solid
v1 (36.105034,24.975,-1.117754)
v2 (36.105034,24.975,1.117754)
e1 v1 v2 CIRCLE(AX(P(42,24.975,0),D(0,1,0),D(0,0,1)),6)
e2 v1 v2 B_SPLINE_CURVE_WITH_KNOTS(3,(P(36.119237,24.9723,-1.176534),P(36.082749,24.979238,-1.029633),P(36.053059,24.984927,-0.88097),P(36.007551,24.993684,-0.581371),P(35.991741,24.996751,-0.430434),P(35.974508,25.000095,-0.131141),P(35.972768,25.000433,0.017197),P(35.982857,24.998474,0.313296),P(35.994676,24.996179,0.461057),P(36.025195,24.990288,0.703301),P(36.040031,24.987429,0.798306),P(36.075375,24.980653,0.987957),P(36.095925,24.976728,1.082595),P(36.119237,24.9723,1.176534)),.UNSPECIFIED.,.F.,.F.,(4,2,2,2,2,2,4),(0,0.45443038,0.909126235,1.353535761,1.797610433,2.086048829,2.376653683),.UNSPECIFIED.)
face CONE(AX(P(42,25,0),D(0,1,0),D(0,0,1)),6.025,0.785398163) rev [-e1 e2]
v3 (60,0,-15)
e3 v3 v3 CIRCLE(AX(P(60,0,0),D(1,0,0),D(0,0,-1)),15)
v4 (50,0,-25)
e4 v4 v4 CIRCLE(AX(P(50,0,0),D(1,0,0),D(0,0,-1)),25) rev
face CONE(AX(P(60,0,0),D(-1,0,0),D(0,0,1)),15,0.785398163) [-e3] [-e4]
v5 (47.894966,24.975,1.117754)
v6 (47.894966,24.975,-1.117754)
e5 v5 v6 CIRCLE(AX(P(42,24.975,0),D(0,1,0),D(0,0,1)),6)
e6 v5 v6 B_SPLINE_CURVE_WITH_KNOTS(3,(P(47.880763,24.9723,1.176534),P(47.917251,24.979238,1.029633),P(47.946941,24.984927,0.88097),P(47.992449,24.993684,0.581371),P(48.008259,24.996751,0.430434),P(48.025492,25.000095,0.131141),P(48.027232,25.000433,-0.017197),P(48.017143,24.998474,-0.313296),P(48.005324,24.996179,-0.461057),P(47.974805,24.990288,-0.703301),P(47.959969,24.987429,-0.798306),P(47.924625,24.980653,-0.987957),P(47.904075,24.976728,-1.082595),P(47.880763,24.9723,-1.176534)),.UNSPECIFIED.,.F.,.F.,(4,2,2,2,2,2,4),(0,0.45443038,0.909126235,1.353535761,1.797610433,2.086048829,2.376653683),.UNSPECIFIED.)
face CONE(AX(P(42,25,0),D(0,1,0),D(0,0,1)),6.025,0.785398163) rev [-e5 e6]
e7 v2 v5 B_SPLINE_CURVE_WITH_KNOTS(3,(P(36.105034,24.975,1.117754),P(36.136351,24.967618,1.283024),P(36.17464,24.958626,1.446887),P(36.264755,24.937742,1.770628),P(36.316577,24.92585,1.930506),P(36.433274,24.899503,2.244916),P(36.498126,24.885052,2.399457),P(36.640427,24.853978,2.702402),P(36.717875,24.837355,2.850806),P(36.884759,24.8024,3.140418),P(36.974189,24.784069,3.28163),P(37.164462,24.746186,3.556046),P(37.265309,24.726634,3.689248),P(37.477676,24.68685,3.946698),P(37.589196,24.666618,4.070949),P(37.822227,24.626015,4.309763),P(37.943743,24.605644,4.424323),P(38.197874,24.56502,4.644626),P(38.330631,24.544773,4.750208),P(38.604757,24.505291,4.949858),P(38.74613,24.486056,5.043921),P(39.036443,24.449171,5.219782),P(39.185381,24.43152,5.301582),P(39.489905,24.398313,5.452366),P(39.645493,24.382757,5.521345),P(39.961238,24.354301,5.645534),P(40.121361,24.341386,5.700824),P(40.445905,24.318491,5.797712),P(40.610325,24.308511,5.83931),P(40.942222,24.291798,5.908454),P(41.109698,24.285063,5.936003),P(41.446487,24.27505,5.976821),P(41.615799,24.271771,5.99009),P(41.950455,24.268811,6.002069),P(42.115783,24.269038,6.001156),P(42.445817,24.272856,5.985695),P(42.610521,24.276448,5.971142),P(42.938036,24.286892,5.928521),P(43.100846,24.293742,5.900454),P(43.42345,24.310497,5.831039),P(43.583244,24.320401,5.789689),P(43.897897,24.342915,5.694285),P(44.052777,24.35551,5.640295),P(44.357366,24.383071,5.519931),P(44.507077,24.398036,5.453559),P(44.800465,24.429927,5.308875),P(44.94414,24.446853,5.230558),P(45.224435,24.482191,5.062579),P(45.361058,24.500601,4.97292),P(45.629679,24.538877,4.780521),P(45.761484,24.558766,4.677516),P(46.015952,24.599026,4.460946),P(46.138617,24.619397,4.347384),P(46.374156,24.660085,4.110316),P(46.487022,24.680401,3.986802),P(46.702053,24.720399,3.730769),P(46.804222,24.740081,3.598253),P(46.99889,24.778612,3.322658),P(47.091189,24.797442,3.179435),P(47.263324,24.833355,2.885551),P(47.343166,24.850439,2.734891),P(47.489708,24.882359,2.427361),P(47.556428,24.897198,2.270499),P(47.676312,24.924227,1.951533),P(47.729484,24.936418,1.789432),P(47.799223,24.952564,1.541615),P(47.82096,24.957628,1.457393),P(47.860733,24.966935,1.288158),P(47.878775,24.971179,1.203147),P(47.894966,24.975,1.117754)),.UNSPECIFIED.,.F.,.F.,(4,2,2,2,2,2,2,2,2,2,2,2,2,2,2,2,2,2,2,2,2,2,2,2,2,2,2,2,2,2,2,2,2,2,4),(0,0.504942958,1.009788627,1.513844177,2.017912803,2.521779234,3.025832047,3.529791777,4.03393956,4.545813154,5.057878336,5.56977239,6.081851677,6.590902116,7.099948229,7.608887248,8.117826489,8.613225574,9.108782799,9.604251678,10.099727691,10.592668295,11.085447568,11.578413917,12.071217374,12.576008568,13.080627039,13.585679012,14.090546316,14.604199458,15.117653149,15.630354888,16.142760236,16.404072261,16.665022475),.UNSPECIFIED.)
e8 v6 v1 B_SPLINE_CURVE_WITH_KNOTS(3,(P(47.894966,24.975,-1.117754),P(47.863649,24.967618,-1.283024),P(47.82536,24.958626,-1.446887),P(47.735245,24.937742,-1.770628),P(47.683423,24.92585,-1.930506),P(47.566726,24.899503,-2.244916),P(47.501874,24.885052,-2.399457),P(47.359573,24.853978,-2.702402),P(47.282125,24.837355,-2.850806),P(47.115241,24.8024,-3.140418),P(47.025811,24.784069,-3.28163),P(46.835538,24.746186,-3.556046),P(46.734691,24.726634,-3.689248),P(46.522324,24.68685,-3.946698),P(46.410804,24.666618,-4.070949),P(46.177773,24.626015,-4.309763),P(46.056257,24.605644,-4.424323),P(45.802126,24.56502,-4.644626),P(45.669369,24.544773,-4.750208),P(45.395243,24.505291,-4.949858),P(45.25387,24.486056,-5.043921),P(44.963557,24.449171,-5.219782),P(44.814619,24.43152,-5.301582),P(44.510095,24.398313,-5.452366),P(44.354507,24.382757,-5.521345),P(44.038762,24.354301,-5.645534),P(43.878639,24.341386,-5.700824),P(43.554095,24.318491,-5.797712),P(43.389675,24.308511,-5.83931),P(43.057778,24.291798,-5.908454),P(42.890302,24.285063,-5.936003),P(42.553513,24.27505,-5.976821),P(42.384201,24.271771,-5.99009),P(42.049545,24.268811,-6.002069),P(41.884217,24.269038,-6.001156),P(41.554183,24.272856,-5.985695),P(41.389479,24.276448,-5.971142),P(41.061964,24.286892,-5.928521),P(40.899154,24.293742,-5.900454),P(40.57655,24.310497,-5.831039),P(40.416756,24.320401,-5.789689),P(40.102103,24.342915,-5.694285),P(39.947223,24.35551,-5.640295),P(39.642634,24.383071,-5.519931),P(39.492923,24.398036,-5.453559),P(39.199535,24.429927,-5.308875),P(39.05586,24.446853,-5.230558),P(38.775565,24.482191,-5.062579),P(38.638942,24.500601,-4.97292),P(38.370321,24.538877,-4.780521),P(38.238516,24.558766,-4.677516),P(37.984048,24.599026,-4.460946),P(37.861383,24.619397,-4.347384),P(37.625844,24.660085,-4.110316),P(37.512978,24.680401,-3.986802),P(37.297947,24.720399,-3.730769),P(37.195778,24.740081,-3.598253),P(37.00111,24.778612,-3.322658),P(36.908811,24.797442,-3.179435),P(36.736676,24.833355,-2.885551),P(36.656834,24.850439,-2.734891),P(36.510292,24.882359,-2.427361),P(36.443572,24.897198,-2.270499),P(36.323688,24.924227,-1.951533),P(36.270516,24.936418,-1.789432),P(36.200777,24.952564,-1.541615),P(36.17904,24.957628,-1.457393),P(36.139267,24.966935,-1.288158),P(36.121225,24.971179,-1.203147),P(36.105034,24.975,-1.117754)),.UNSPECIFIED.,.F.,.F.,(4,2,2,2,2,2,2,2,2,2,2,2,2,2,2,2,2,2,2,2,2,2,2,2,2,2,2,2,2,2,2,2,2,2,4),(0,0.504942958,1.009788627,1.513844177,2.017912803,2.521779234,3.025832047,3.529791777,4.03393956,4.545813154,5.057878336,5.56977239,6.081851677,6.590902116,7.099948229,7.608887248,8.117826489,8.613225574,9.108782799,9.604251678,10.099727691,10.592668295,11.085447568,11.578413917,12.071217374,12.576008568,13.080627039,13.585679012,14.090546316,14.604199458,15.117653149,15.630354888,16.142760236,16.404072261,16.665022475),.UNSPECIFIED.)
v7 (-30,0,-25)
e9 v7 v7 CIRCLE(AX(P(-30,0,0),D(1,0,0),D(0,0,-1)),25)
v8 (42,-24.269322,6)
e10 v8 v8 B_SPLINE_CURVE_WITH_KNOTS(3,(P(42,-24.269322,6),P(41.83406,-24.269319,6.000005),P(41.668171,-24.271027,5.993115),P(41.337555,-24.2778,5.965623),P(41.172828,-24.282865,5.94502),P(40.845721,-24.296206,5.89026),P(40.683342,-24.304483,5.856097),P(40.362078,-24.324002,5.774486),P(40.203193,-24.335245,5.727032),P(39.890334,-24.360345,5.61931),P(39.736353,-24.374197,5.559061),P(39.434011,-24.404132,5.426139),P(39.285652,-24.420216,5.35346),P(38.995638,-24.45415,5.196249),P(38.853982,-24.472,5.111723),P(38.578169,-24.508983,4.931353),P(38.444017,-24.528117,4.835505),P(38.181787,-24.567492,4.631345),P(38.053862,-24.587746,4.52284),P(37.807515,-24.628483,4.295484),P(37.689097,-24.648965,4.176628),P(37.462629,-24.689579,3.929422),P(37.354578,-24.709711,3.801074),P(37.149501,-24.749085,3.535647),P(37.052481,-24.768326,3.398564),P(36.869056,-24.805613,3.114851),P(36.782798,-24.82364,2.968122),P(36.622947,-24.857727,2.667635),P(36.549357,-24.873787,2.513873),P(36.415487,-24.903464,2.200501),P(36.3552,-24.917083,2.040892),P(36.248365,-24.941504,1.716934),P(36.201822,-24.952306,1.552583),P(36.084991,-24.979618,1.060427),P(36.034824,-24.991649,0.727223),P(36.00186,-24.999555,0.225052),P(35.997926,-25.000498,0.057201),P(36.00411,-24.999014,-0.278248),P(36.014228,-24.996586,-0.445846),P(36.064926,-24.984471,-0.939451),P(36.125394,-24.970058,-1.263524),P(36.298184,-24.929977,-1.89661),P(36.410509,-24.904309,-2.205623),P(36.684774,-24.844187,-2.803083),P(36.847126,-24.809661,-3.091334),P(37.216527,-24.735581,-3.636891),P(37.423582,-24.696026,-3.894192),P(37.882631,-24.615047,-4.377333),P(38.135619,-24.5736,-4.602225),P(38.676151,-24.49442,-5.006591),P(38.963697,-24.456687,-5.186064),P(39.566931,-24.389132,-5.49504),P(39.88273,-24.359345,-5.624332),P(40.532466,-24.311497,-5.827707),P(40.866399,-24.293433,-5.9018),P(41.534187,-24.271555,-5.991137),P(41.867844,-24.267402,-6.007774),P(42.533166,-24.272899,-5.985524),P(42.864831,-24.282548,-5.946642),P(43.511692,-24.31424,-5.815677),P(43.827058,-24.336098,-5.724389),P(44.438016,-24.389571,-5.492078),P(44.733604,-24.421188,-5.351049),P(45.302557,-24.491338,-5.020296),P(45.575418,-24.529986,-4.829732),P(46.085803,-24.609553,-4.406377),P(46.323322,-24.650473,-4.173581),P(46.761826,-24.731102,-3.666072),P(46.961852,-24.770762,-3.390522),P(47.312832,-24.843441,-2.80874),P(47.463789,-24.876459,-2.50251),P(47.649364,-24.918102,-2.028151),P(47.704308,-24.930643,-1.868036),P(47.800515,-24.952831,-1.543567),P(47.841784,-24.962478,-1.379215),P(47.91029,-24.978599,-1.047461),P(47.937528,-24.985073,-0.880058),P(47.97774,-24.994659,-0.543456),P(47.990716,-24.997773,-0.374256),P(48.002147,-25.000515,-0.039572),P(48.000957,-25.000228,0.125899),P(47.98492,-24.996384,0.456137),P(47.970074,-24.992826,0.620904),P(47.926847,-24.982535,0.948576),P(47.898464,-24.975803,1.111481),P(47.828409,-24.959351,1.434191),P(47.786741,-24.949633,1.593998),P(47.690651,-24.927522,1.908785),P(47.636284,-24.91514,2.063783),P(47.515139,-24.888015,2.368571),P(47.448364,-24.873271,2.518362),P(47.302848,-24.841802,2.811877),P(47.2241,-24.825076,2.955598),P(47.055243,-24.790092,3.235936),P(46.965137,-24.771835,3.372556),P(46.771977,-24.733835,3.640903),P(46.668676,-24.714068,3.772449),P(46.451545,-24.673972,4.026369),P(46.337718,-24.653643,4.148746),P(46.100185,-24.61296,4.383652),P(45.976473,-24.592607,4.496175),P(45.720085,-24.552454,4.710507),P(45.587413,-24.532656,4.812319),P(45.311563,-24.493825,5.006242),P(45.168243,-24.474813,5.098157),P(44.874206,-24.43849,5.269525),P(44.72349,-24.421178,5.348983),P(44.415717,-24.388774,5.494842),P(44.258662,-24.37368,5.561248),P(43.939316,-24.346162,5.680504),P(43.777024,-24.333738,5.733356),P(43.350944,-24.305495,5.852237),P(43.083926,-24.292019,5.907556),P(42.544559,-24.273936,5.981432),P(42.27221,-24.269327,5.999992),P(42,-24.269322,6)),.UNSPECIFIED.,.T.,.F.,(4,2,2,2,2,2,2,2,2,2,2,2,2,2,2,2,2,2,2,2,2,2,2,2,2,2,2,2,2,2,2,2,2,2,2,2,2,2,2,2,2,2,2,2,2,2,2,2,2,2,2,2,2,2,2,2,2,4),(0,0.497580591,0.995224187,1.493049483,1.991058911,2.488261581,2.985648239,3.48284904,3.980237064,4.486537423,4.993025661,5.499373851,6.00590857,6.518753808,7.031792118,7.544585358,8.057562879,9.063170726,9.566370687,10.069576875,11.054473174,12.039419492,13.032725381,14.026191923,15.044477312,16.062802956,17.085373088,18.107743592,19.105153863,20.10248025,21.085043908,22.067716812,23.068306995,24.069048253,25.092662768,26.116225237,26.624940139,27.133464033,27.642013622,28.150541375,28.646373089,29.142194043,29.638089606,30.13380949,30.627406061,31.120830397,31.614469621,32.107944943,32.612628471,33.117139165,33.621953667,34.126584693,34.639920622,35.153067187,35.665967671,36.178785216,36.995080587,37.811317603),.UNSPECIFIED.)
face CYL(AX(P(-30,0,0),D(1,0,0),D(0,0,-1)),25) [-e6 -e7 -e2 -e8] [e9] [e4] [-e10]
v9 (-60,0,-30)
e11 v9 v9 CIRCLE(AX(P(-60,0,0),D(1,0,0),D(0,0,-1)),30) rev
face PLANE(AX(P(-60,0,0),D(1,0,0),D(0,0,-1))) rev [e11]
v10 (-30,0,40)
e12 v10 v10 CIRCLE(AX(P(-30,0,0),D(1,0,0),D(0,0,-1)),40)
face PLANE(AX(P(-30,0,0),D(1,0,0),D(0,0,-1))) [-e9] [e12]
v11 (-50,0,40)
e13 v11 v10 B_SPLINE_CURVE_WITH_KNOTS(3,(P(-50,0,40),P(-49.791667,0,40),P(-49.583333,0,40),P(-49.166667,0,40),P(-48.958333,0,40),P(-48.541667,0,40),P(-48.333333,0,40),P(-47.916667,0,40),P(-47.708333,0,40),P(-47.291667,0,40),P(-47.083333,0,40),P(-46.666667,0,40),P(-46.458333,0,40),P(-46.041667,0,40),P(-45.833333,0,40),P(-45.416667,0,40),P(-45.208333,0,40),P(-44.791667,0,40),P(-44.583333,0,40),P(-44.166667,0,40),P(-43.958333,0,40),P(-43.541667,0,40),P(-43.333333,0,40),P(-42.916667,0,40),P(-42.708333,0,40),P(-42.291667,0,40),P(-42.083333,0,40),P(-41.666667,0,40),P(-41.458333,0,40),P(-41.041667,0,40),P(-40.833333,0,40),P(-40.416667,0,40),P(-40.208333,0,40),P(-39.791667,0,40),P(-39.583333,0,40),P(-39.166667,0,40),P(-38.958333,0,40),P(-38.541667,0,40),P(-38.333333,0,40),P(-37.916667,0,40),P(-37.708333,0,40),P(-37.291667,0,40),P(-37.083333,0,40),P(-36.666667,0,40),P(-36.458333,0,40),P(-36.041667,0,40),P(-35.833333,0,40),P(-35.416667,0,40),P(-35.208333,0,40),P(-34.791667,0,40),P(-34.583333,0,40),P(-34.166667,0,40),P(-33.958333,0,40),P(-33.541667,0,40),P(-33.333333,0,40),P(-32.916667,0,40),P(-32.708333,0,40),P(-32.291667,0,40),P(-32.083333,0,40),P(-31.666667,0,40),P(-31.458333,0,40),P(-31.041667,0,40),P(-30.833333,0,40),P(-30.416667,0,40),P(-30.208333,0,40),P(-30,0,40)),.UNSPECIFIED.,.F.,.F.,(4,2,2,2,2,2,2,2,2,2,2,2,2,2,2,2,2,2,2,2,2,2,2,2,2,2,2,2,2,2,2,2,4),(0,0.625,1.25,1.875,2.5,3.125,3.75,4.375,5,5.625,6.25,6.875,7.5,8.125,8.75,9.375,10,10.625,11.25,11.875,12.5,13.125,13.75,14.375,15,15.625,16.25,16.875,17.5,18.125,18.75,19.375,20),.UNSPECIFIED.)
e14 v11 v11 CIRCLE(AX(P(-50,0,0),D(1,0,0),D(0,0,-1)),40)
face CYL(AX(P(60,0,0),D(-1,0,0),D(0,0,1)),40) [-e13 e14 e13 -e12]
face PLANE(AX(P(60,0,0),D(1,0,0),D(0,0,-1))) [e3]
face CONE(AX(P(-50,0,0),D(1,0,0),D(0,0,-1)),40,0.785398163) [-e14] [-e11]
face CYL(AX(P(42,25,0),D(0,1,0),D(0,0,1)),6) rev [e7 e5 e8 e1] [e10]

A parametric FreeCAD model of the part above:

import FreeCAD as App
import Part
import Sketcher
from FreeCAD import Vector


def edges_at(feature, points):
    """Names of the edges that pass closest to the given points."""
    edges = feature.Shape.Edges
    near = lambda p: min(range(len(edges)), key=lambda i: edges[i].distToShape(Part.Vertex(*p))[0])
    return sorted({f"Edge{near(p) + 1}" for p in points})

doc = App.newDocument("Part")
params = doc.addObject("Spreadsheet::Sheet", "Params")
for row, (alias, value) in enumerate([
    ("sketch1_diameter", "80 mm"),
    ("pad1_length", "120 mm"),
    ("sketch2_diameter", "80 mm"),
    ("sketch2_diameter2", "50 mm"),
    ("pocket1_length", "90 mm"),
    ("chamfer_size", "10 mm"),
    ("sketch3_diameter", "12 mm"),
    ("hole_diameter", "12 mm"),
    ("hole_csink_diameter", "12.05 mm"),
], start=1):
    params.set(f"A{row}", alias)
    params.set(f"B{row}", "=" + value)
    params.setAlias(f"B{row}", alias)

body = doc.addObject("PartDesign::Body", "Body")

sketch1 = doc.addObject("Sketcher::SketchObject", "Sketch")
body.addObject(sketch1)
sketch1.AttachmentSupport = (doc.YZ_Plane, [""])
sketch1.MapMode = "FlatFace"
sketch1.addGeometry(Part.Circle(Vector(0, 0, 0), Vector(0, 0, 1), 40), False)
sketch1.addConstraint([
    Sketcher.Constraint("Coincident", 0, 3, -1, 1),
    Sketcher.Constraint("Diameter", 0, 80.0),
])
sketch1.setExpression("Constraints[1]", "Params.sketch1_diameter")
pad1 = doc.addObject("PartDesign::Pad", "Pad")
body.addObject(pad1)
pad1.Profile = sketch1
pad1.setExpression("Length", "Params.pad1_length")
pad1.Midplane = True

sketch2 = doc.addObject("Sketcher::SketchObject", "Sketch001")
body.addObject(sketch2)
sketch2.AttachmentSupport = (doc.YZ_Plane, [""])
sketch2.MapMode = "FlatFace"
sketch2.AttachmentOffset = App.Placement(Vector(0, 0, 60), App.Rotation())
sketch2.addGeometry([
    Part.Circle(Vector(0, 0, 0), Vector(0, 0, 1), 40),
    Part.Circle(Vector(0, 0, 0), Vector(0, 0, 1), 25),
], False)
sketch2.addConstraint([
    Sketcher.Constraint("Coincident", 0, 3, -1, 1),
    Sketcher.Constraint("Coincident", 1, 3, -1, 1),
    Sketcher.Constraint("Diameter", 0, 80.0),
    Sketcher.Constraint("Diameter", 1, 50.0),
])
sketch2.setExpression("Constraints[2]", "Params.sketch2_diameter")
sketch2.setExpression("Constraints[3]", "Params.sketch2_diameter2")
pocket1 = doc.addObject("PartDesign::Pocket", "Pocket")
body.addObject(pocket1)
pocket1.Profile = sketch2
pocket1.setExpression("Length", "Params.pocket1_length")
doc.recompute()

chamfer = doc.addObject("PartDesign::Chamfer", "Chamfer")
body.addObject(chamfer)
chamfer.Base = (pocket1, edges_at(pocket1, [(-60, 0, -40), (60, 0, 25)]))
chamfer.setExpression("Size", "Params.chamfer_size")

sketch3 = doc.addObject("Sketcher::SketchObject", "Sketch002")
body.addObject(sketch3)
sketch3.AttachmentSupport = (doc.XZ_Plane, [""])
sketch3.MapMode = "FlatFace"
sketch3.AttachmentOffset = App.Placement(Vector(0, 0, -25), App.Rotation())
sketch3.addGeometry(Part.Circle(Vector(42, 0, 0), Vector(0, 0, 1), 6), False)
sketch3.addConstraint([
    Sketcher.Constraint("PointOnObject", 0, 3, -1),
    Sketcher.Constraint("Diameter", 0, 12.0),
    Sketcher.Constraint("DistanceX", -1, 1, 0, 3, 42.0),
])
sketch3.setExpression("Constraints[1]", "Params.sketch3_diameter")
doc.recompute()
hole = doc.addObject("PartDesign::Hole", "Hole")
body.addObject(hole)
hole.Profile = sketch3
hole.ThreadType = "None"
hole.setExpression("Diameter", "Params.hole_diameter")
hole.DepthType = "ThroughAll"
hole.HoleCutType = "Countersink"
hole.setExpression("HoleCutDiameter", "Params.hole_csink_diameter")
hole.HoleCutCountersinkAngle = 90
hole.Reversed = True

doc.recompute()
